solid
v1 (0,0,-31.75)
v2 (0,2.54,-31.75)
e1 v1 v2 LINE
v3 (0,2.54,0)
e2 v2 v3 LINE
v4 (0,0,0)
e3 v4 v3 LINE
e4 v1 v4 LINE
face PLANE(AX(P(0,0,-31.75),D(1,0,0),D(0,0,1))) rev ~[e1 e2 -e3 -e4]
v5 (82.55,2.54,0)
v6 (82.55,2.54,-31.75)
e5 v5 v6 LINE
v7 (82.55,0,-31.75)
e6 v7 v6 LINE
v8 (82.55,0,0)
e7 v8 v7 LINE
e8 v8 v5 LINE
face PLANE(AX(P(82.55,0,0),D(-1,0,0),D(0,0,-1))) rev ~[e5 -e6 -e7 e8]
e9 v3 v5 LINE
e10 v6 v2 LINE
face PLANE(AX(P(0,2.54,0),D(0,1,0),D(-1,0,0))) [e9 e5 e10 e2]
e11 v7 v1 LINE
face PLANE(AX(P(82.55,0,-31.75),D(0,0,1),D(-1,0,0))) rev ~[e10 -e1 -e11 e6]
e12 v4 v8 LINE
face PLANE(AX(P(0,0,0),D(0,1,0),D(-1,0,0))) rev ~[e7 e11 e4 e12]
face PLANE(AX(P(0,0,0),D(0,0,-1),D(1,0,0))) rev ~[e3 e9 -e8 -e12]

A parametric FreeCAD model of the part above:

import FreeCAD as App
import Part
import Sketcher
Q = App.Units.Quantity


def add_polygon(sketch, points):
    """Adds a closed chain of lines whose ends are joined by coincident constraints."""
    first, n = sketch.GeometryCount, len(points)
    for a, b in zip(points, points[1:] + points[:1]):
        sketch.addGeometry(Part.LineSegment(App.Vector(*a, 0), App.Vector(*b, 0)), False)
    for i in range(n):
        sketch.addConstraint(Sketcher.Constraint("Coincident", first + i, 2, first + (i + 1) % n, 1))

doc = App.newDocument("Part")
body = doc.addObject("PartDesign::Body", "Body")

# Sketch on XZ plane
sketch1 = body.newObject("Sketcher::SketchObject", "Sketch")
sketch1.AttachmentSupport = (doc.getObject("XZ_Plane"), [""])
sketch1.MapMode = "FlatFace"
add_polygon(sketch1, [(0, -32), (0, 0), (83, 0), (83, -32)])  # lines 0-3
sketch1.addConstraint([
    Sketcher.Constraint("Vertical", 0),
    Sketcher.Constraint("Horizontal", 1),
    Sketcher.Constraint("Vertical", 2),
    Sketcher.Constraint("Horizontal", 3),
    Sketcher.Constraint("Coincident", 0, 2, -1, 1),
    Sketcher.Constraint("DistanceX", 1, 1, 1, 2, Q("3.25 in")),
    Sketcher.Constraint("DistanceY", 0, 1, 0, 2, Q("1.25 in")),
])
pad1 = body.newObject("PartDesign::Pad", "Pad")
pad1.Profile = sketch1
pad1.Length = Q("0.1 in")
pad1.Reversed = True

doc.recompute()
